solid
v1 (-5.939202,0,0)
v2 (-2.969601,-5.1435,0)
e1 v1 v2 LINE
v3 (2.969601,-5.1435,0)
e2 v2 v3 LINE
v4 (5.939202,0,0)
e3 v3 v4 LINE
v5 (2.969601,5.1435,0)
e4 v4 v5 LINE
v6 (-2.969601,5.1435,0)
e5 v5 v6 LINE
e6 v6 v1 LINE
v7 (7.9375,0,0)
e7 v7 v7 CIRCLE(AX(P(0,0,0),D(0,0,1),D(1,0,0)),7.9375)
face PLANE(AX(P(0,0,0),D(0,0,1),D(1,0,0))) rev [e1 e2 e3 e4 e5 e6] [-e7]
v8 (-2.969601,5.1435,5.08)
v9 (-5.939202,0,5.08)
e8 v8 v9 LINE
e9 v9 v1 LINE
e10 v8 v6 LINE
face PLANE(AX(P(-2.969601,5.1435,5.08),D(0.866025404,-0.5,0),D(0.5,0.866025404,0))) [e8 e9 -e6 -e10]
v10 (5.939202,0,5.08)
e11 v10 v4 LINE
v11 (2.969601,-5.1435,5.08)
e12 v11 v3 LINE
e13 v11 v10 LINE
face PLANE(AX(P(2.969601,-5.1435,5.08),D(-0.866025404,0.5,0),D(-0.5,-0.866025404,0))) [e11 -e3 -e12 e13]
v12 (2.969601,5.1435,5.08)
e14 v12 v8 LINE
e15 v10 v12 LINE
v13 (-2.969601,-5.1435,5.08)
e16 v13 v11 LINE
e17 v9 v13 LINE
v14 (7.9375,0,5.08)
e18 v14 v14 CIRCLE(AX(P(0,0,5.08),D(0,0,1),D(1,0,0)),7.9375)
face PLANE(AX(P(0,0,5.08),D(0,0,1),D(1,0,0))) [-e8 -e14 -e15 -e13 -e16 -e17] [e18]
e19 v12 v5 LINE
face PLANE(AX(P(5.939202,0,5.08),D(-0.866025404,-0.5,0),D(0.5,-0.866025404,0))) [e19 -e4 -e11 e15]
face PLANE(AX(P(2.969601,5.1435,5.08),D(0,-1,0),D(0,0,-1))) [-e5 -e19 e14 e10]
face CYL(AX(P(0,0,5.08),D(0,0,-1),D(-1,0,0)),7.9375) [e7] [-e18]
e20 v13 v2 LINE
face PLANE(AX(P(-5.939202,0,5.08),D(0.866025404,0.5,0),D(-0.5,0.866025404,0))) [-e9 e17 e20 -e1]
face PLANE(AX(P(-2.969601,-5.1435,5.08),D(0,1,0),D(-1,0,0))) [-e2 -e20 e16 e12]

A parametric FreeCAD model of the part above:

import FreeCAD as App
import Part
import Sketcher
from FreeCAD import Vector
Q = App.Units.Quantity


def add_polygon(sketch, points):
    """Adds a closed chain of lines whose ends are joined by coincident constraints."""
    first, n = sketch.GeometryCount, len(points)
    for a, b in zip(points, points[1:] + points[:1]):
        sketch.addGeometry(Part.LineSegment(App.Vector(*a, 0), App.Vector(*b, 0)), False)
    for i in range(n):
        sketch.addConstraint(Sketcher.Constraint("Coincident", first + i, 2, first + (i + 1) % n, 1))

doc = App.newDocument("Part")
body = doc.addObject("PartDesign::Body", "Body")

sketch1 = body.newObject("Sketcher::SketchObject", "Sketch")
sketch1.AttachmentSupport = (doc.getObject("XY_Plane"), [""])
sketch1.MapMode = "FlatFace"
sketch1.addGeometry(Part.Circle(Vector(0, 0, 0), Vector(0, 0, 1), 7.9375), False)
add_polygon(sketch1, [(5.939202, 0), (2.969601, -5.1435), (-2.969601, -5.1435), (-5.939202, 0), (-2.969601, 5.1435), (2.969601, 5.1435)])
sketch1.addConstraint([
    Sketcher.Constraint("Horizontal", 2),
    Sketcher.Constraint("Horizontal", 5),
    Sketcher.Constraint("Coincident", 0, 3, -1, 1),
    Sketcher.Constraint("Symmetric", 1, 2, 4, 2, -1, 1),
    Sketcher.Constraint("Symmetric", 3, 2, 6, 2, -1, 1),
    Sketcher.Constraint("PointOnObject", 3, 2, -1),
    Sketcher.Constraint("Parallel", 3, 6),
    Sketcher.Constraint("Vertical", 2, 2, 4, 2),
    Sketcher.Constraint("Diameter", 0, Q("0.625 in")),
    Sketcher.Constraint("Angle", 1, Q("-120 deg")),
    Sketcher.Constraint("DistanceY", 2, 2, 4, 2, Q("0.405 in")),
    Sketcher.Constraint("DistanceX", -1, 1, 1, 2, Q("2.969601 mm")),
])
pad1 = body.newObject("PartDesign::Pad", "Pad")
pad1.Profile = sketch1
pad1.Length = Q("0.2 in")

doc.recompute()
